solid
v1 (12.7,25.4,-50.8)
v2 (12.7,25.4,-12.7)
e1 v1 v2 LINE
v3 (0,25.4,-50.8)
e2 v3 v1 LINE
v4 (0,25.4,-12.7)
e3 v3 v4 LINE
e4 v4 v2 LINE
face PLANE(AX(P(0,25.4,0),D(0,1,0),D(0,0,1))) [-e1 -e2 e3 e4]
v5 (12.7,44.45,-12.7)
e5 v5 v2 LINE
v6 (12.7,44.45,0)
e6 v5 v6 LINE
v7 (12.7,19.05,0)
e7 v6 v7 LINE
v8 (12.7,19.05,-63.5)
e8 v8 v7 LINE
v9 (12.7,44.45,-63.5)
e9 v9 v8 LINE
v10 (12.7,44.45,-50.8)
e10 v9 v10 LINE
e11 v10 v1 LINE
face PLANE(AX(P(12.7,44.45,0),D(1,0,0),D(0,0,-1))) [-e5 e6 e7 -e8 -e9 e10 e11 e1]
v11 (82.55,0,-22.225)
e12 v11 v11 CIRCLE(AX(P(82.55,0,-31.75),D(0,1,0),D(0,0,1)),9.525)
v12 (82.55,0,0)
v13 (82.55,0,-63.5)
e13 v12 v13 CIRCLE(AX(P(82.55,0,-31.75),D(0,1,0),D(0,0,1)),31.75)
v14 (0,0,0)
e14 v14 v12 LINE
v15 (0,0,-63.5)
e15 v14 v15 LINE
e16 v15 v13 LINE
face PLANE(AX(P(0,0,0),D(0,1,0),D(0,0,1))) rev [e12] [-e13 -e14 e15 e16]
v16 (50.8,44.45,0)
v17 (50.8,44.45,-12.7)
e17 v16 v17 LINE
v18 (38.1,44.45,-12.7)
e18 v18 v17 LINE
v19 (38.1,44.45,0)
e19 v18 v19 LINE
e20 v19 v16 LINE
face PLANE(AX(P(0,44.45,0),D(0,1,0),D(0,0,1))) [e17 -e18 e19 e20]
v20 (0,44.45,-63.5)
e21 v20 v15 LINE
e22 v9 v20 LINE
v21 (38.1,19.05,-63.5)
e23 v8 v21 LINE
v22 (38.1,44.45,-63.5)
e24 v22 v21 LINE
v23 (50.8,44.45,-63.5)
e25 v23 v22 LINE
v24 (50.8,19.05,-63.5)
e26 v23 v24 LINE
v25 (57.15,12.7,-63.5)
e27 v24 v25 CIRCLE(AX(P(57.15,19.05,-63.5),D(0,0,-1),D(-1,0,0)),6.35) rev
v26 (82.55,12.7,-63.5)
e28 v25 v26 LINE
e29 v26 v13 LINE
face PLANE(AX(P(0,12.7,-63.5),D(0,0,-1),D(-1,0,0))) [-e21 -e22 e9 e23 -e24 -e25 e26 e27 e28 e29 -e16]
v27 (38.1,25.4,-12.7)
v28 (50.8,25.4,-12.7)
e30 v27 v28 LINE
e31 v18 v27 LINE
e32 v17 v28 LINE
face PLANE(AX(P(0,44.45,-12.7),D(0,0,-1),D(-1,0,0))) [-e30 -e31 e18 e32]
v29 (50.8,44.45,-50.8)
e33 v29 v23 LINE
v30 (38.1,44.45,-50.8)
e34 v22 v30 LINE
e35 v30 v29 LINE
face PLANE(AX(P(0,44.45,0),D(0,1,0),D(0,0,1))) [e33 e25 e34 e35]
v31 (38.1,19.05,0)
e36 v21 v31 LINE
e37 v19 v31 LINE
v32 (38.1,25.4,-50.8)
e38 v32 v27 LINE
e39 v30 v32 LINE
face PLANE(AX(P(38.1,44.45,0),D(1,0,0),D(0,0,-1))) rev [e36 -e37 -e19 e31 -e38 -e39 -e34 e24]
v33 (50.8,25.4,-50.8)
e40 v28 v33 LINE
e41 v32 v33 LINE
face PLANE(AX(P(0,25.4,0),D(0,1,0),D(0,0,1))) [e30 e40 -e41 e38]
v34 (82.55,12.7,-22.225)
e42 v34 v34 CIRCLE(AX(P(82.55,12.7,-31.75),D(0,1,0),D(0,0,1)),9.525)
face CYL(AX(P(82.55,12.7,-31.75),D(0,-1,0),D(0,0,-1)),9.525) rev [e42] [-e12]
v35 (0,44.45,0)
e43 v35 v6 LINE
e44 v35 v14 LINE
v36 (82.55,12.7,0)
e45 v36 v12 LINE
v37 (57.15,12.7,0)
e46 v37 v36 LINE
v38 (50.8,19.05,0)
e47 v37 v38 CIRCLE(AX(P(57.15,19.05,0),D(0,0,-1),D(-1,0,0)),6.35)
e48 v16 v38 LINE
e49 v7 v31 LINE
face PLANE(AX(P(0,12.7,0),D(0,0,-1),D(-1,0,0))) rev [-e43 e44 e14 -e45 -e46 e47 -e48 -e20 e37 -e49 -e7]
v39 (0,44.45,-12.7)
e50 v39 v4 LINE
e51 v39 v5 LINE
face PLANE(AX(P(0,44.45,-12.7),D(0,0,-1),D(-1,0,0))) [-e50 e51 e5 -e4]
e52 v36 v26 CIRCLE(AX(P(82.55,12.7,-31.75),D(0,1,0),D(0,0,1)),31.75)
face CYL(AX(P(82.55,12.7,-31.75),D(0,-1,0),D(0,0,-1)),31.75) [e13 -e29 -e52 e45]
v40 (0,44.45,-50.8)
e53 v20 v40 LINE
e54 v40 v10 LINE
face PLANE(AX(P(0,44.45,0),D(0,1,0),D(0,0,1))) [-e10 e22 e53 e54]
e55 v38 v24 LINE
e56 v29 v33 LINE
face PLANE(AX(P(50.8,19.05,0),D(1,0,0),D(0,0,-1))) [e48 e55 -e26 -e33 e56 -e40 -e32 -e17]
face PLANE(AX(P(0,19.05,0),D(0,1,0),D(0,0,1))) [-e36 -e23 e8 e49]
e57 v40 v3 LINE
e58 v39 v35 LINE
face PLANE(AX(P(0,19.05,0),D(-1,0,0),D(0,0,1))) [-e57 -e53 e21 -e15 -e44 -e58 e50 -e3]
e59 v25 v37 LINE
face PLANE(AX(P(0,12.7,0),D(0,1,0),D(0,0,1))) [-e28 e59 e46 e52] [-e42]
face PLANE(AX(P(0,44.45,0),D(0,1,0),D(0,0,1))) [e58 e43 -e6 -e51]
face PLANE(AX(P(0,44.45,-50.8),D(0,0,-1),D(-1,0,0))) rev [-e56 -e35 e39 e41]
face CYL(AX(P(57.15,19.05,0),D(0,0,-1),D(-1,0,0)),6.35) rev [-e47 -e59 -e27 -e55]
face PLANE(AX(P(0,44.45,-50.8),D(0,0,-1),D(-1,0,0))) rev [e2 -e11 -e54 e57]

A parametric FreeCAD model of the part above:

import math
import FreeCAD as App
import Part
import Sketcher
from FreeCAD import Vector
Q = App.Units.Quantity


def edges_at(feature, points):
    """Names of the edges that pass closest to the given points."""
    edges = feature.Shape.Edges
    near = lambda p: min(range(len(edges)), key=lambda i: edges[i].distToShape(Part.Vertex(*p))[0])
    return sorted({f"Edge{near(p) + 1}" for p in points})


def add_polygon(sketch, points):
    """Adds a closed chain of lines whose ends are joined by coincident constraints."""
    first, n = sketch.GeometryCount, len(points)
    for a, b in zip(points, points[1:] + points[:1]):
        sketch.addGeometry(Part.LineSegment(App.Vector(*a, 0), App.Vector(*b, 0)), False)
    for i in range(n):
        sketch.addConstraint(Sketcher.Constraint("Coincident", first + i, 2, first + (i + 1) % n, 1))

doc = App.newDocument("Part")
body = doc.addObject("PartDesign::Body", "Body")

# Sketch on XZ plane
sketch1 = doc.addObject("Sketcher::SketchObject", "Sketch")
body.addObject(sketch1)
sketch1.AttachmentSupport = (doc.XZ_Plane, [""])
sketch1.MapMode = "FlatFace"
sketch1.addGeometry(Part.LineSegment(Vector(82.55, -63.5, 0), Vector(50.8, -63.5, 0)), False)
sketch1.addGeometry(Part.LineSegment(Vector(50.8, -63.5, 0), Vector(50.8, 0, 0)), False)
sketch1.addGeometry(Part.LineSegment(Vector(50.8, 0, 0), Vector(82.55, 0, 0)), False)
sketch1.addGeometry(Part.ArcOfCircle(Part.Circle(Vector(82.55, -31.75, 0), Vector(0, 0, 1), 31.75), math.radians(0), math.radians(90)), False)
sketch1.addGeometry(Part.ArcOfCircle(Part.Circle(Vector(82.55, -31.75, 0), Vector(0, 0, 1), 31.75), math.radians(-90), math.radians(0)), False)
sketch1.addGeometry(Part.ArcOfCircle(Part.Circle(Vector(82.55, -31.75, 0), Vector(0, 0, 1), 9.525), math.radians(90), math.radians(270)), False)
sketch1.addGeometry(Part.ArcOfCircle(Part.Circle(Vector(82.55, -31.75, 0), Vector(0, 0, 1), 9.525), math.radians(-90), math.radians(0)), False)
sketch1.addGeometry(Part.ArcOfCircle(Part.Circle(Vector(82.55, -31.75, 0), Vector(0, 0, 1), 9.525), math.radians(0), math.radians(90)), False)
sketch1.addConstraint(Sketcher.Constraint("Coincident", 0, 2, 1, 1))
sketch1.addConstraint(Sketcher.Constraint("Coincident", 1, 2, 2, 1))
sketch1.addConstraint(Sketcher.Constraint("Tangent", 2, 2, 3, 2))
sketch1.addConstraint(Sketcher.Constraint("Tangent", 3, 1, 4, 2))
sketch1.addConstraint(Sketcher.Constraint("Tangent", 4, 1, 0, 1))
sketch1.addConstraint(Sketcher.Constraint("Tangent", 5, 2, 6, 1))
sketch1.addConstraint(Sketcher.Constraint("Tangent", 6, 2, 7, 1))
sketch1.addConstraint(Sketcher.Constraint("Tangent", 7, 2, 5, 1))
sketch1.addConstraint(Sketcher.Constraint("Horizontal", 0))
sketch1.addConstraint(Sketcher.Constraint("Vertical", 1))
sketch1.addConstraint(Sketcher.Constraint("Horizontal", 2))
sketch1.addConstraint(Sketcher.Constraint("Coincident", 5, 3, 3, 3))
sketch1.addConstraint(Sketcher.Constraint("Equal", 3, 4))
sketch1.addConstraint(Sketcher.Constraint("PointOnObject", 1, 2, -1))
sketch1.addConstraint(Sketcher.Constraint("Horizontal", 7, 3, 3, 1))
sketch1.addConstraint(Sketcher.Constraint("Horizontal", 3, 1, 6, 2))
sketch1.addConstraint(Sketcher.Constraint("Vertical", 4, 1, 5, 2))
sketch1.addConstraint(Sketcher.Constraint("Vertical", 5, 2, 7, 2))
sketch1.addConstraint(Sketcher.Constraint("Radius", 3, Q("1.25 in")))
sketch1.addConstraint(Sketcher.Constraint("DistanceX", -1, 1, 0, 2, Q("2 in")))
sketch1.addConstraint(Sketcher.Constraint("Radius", 5, Q("0.375 in")))
sketch1.addConstraint(Sketcher.Constraint("DistanceX", 0, 2, 0, 1, Q("1.25 in")))
pad1 = doc.addObject("PartDesign::Pad", "Pad")
body.addObject(pad1)
pad1.Profile = sketch1
pad1.Length = Q("0.5 in")
pad1.Reversed = True

# Sketch on XZ plane
sketch2 = doc.addObject("Sketcher::SketchObject", "Sketch001")
body.addObject(sketch2)
sketch2.AttachmentSupport = (doc.XZ_Plane, [""])
sketch2.MapMode = "FlatFace"
add_polygon(sketch2, [(50.8, -63.5), (0, -63.5), (0, 0), (50.8, 0)])  # lines 0-3
sketch2.addConstraint(Sketcher.Constraint("Horizontal", 0))
sketch2.addConstraint(Sketcher.Constraint("Vertical", 1))
sketch2.addConstraint(Sketcher.Constraint("Horizontal", 2))
sketch2.addConstraint(Sketcher.Constraint("Vertical", 3))
sketch2.addConstraint(Sketcher.Constraint("Coincident", 1, 2, -1, 1))
sketch2.addConstraint(Sketcher.Constraint("DistanceX", 0, 2, 0, 1, Q("2 in")))
sketch2.addConstraint(Sketcher.Constraint("DistanceY", 1, 1, 1, 2, Q("2.5 in")))
pad2 = doc.addObject("PartDesign::Pad", "Pad001")
body.addObject(pad2)
pad2.Profile = sketch2
pad2.Length = Q("0.75 in")
pad2.Reversed = True

# Sketch on XZ plane
sketch3 = doc.addObject("Sketcher::SketchObject", "Sketch002")
body.addObject(sketch3)
sketch3.AttachmentSupport = (doc.XZ_Plane, [""])
sketch3.MapMode = "FlatFace"
sketch3.AttachmentOffset = App.Placement(Vector(0, 0, -0.75 * 25.4), App.Rotation())
add_polygon(sketch3, [(0, -63.5), (0, -50.8), (12.7, -50.8), (12.7, -63.5)])  # lines 0-3
add_polygon(sketch3, [(0, -12.7), (0, 0), (12.7, 0), (12.7, -12.7)])  # lines 4-7
add_polygon(sketch3, [(38.1, -63.5), (38.1, -50.8), (50.8, -50.8), (50.8, -63.5)])  # lines 8-11
add_polygon(sketch3, [(38.1, -12.7), (38.1, 0), (50.8, 0), (50.8, -12.7)])  # lines 12-15
sketch3.addConstraint(Sketcher.Constraint("Vertical", 0))
sketch3.addConstraint(Sketcher.Constraint("Horizontal", 1))
sketch3.addConstraint(Sketcher.Constraint("Vertical", 2))
sketch3.addConstraint(Sketcher.Constraint("Horizontal", 3))
sketch3.addConstraint(Sketcher.Constraint("Vertical", 4))
sketch3.addConstraint(Sketcher.Constraint("Horizontal", 5))
sketch3.addConstraint(Sketcher.Constraint("Vertical", 6))
sketch3.addConstraint(Sketcher.Constraint("Horizontal", 7))
sketch3.addConstraint(Sketcher.Constraint("Vertical", 8))
sketch3.addConstraint(Sketcher.Constraint("Horizontal", 9))
sketch3.addConstraint(Sketcher.Constraint("Vertical", 10))
sketch3.addConstraint(Sketcher.Constraint("Horizontal", 11))
sketch3.addConstraint(Sketcher.Constraint("Vertical", 12))
sketch3.addConstraint(Sketcher.Constraint("Horizontal", 13))
sketch3.addConstraint(Sketcher.Constraint("Vertical", 14))
sketch3.addConstraint(Sketcher.Constraint("Horizontal", 15))
sketch3.addConstraint(Sketcher.Constraint("Coincident", 4, 2, -1, 1))
sketch3.addConstraint(Sketcher.Constraint("PointOnObject", 0, 2, -2))
sketch3.addConstraint(Sketcher.Constraint("PointOnObject", 12, 2, -1))
sketch3.addConstraint(Sketcher.Constraint("Horizontal", 1, 2, 8, 2))
sketch3.addConstraint(Sketcher.Constraint("Horizontal", 3, 2, 10, 2))
sketch3.addConstraint(Sketcher.Constraint("Horizontal", 7, 2, 14, 2))
sketch3.addConstraint(Sketcher.Constraint("Vertical", 2, 2, 5, 2))
sketch3.addConstraint(Sketcher.Constraint("Vertical", 11, 2, 12, 2))
sketch3.addConstraint(Sketcher.Constraint("Vertical", 10, 2, 13, 2))
sketch3.addConstraint(Sketcher.Constraint("Equal", 7, 9))
sketch3.addConstraint(Sketcher.Constraint("Equal", 15, 0))
sketch3.addConstraint(Sketcher.Constraint("Equal", 2, 4))
sketch3.addConstraint(Sketcher.Constraint("DistanceX", 1, 1, 1, 2, Q("0.5 in")))
sketch3.addConstraint(Sketcher.Constraint("DistanceY", 0, 2, -1, 1, Q("2 in")))
sketch3.addConstraint(Sketcher.Constraint("DistanceX", -1, 1, 9, 2, Q("2 in")))
pad3 = doc.addObject("PartDesign::Pad", "Pad002")
body.addObject(pad3)
pad3.Profile = sketch3
pad3.Length = Q("1 in")
pad3.Reversed = True

# Sketch on XZ plane
sketch4 = doc.addObject("Sketcher::SketchObject", "Sketch003")
body.addObject(sketch4)
sketch4.AttachmentSupport = (doc.XZ_Plane, [""])
sketch4.MapMode = "FlatFace"
sketch4.AttachmentOffset = App.Placement(Vector(0, 0, -0.75 * 25.4), App.Rotation())
add_polygon(sketch4, [(0, -50.8), (0, -12.7), (12.7, -12.7), (12.7, -50.8)])  # lines 0-3
add_polygon(sketch4, [(38.1, -50.8), (38.1, -12.7), (50.8, -12.7), (50.8, -50.8)])  # lines 4-7
sketch4.addConstraint(Sketcher.Constraint("Vertical", 0))
sketch4.addConstraint(Sketcher.Constraint("Horizontal", 1))
sketch4.addConstraint(Sketcher.Constraint("Vertical", 2))
sketch4.addConstraint(Sketcher.Constraint("Horizontal", 3))
sketch4.addConstraint(Sketcher.Constraint("Vertical", 4))
sketch4.addConstraint(Sketcher.Constraint("Horizontal", 5))
sketch4.addConstraint(Sketcher.Constraint("Vertical", 6))
sketch4.addConstraint(Sketcher.Constraint("Horizontal", 7))
sketch4.addConstraint(Sketcher.Constraint("PointOnObject", 0, 2, -2))
sketch4.addConstraint(Sketcher.Constraint("Horizontal", 1, 2, 4, 2))
sketch4.addConstraint(Sketcher.Constraint("Horizontal", 3, 2, 6, 2))
sketch4.addConstraint(Sketcher.Constraint("Equal", 3, 5))
sketch4.addConstraint(Sketcher.Constraint("DistanceX", 1, 1, 1, 2, Q("0.5 in")))
sketch4.addConstraint(Sketcher.Constraint("DistanceY", 0, 1, 0, 2, Q("1.5 in")))
sketch4.addConstraint(Sketcher.Constraint("DistanceY", 2, 2, -1, 1, Q("2 in")))
sketch4.addConstraint(Sketcher.Constraint("DistanceX", -1, 1, 5, 2, Q("2 in")))
pad4 = doc.addObject("PartDesign::Pad", "Pad003")
body.addObject(pad4)
pad4.Profile = sketch4
pad4.Length = Q("0.25 in")
pad4.Reversed = True
doc.recompute()

fillet = doc.addObject("PartDesign::Fillet", "Fillet")
body.addObject(fillet)
fillet.Base = (pad4, edges_at(pad4, [(50.8, 12.7, -31.75)]))
fillet.Radius = Q("0.25 in")

doc.recompute()
